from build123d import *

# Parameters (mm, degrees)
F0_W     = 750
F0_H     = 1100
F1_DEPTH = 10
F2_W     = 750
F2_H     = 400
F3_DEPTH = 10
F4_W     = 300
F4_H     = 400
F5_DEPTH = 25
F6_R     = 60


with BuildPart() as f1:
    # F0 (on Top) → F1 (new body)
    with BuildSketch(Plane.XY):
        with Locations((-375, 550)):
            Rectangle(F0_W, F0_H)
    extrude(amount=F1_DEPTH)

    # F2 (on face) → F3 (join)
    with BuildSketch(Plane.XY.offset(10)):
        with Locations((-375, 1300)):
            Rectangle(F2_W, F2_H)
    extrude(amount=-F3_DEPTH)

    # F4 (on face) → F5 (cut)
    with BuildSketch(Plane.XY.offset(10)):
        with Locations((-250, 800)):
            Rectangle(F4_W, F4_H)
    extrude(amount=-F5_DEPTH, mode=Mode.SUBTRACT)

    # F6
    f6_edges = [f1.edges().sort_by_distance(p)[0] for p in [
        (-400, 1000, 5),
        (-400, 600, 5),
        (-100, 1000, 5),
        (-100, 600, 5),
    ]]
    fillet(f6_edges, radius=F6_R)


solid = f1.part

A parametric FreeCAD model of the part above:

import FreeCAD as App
import Part
import Sketcher
from FreeCAD import Vector
Q = App.Units.Quantity


def edges_at(feature, points):
    """Names of the edges that pass closest to the given points."""
    edges = feature.Shape.Edges
    near = lambda p: min(range(len(edges)), key=lambda i: edges[i].distToShape(Part.Vertex(*p))[0])
    return sorted({f"Edge{near(p) + 1}" for p in points})


def add_polygon(sketch, points):
    """Adds a closed chain of lines whose ends are joined by coincident constraints."""
    first, n = sketch.GeometryCount, len(points)
    for a, b in zip(points, points[1:] + points[:1]):
        sketch.addGeometry(Part.LineSegment(App.Vector(*a, 0), App.Vector(*b, 0)), False)
    for i in range(n):
        sketch.addConstraint(Sketcher.Constraint("Coincident", first + i, 2, first + (i + 1) % n, 1))

doc = App.newDocument("Part")
params = doc.addObject("Spreadsheet::Sheet", "Params")
for row, (alias, value) in enumerate([
    ("sketch1_width", "750 mm"),
    ("sketch1_height", "1100 mm"),
    ("pad1_length", "10 mm"),
    ("sketch2_width", "750 mm"),
    ("sketch2_height", "400 mm"),
    ("pad2_length", "10 mm"),
    ("sketch3_width", "300 mm"),
    ("sketch3_height", "400 mm"),
    ("pocket1_length", "25 mm"),
    ("fillet_radius", "60 mm"),
], start=1):
    params.set(f"A{row}", alias)
    params.set(f"B{row}", "=" + value)
    params.setAlias(f"B{row}", alias)

body = doc.addObject("PartDesign::Body", "Body")

# Sketch on XY plane
sketch1 = doc.addObject("Sketcher::SketchObject", "Sketch")
body.addObject(sketch1)
sketch1.AttachmentSupport = (doc.XY_Plane, [""])
sketch1.MapMode = "FlatFace"
add_polygon(sketch1, [(-750, 1100), (-750, 0), (0, 0), (0, 1100)])  # lines 0-3
sketch1.addConstraint([
    Sketcher.Constraint("Vertical", 0),
    Sketcher.Constraint("Horizontal", 1),
    Sketcher.Constraint("Vertical", 2),
    Sketcher.Constraint("Horizontal", 3),
    Sketcher.Constraint("Coincident", 1, 2, -1, 1),
    Sketcher.Constraint("DistanceX", 1, 1, 1, 2, Q("750 mm")),
    Sketcher.Constraint("DistanceY", 0, 2, 0, 1, Q("1100 mm")),
])
sketch1.setExpression("Constraints[9]", "Params.sketch1_width")
sketch1.setExpression("Constraints[10]", "Params.sketch1_height")
pad1 = doc.addObject("PartDesign::Pad", "Pad")
body.addObject(pad1)
pad1.Profile = sketch1
pad1.setExpression("Length", "Params.pad1_length")

# Sketch on XY plane
sketch2 = doc.addObject("Sketcher::SketchObject", "Sketch001")
body.addObject(sketch2)
sketch2.AttachmentSupport = (doc.XY_Plane, [""])
sketch2.MapMode = "FlatFace"
sketch2.AttachmentOffset = App.Placement(Vector(0, 0, 10), App.Rotation())
add_polygon(sketch2, [(-750, 1500), (-750, 1100), (0, 1100), (0, 1500)])  # lines 0-3
sketch2.addConstraint([
    Sketcher.Constraint("Vertical", 0),
    Sketcher.Constraint("Horizontal", 1),
    Sketcher.Constraint("Vertical", 2),
    Sketcher.Constraint("Horizontal", 3),
    Sketcher.Constraint("PointOnObject", 1, 2, -2),
    Sketcher.Constraint("DistanceX", 1, 1, 1, 2, Q("750 mm")),
    Sketcher.Constraint("DistanceY", 0, 2, 0, 1, Q("400 mm")),
    Sketcher.Constraint("DistanceY", -1, 1, 0, 2, Q("1100 mm")),
])
sketch2.setExpression("Constraints[9]", "Params.sketch2_width")
sketch2.setExpression("Constraints[10]", "Params.sketch2_height")
pad2 = doc.addObject("PartDesign::Pad", "Pad001")
body.addObject(pad2)
pad2.Profile = sketch2
pad2.setExpression("Length", "Params.pad2_length")
pad2.Reversed = True

# Sketch on XY plane
sketch3 = doc.addObject("Sketcher::SketchObject", "Sketch002")
body.addObject(sketch3)
sketch3.AttachmentSupport = (doc.XY_Plane, [""])
sketch3.MapMode = "FlatFace"
sketch3.AttachmentOffset = App.Placement(Vector(0, 0, 10), App.Rotation())
add_polygon(sketch3, [(-400, 1000), (-400, 600), (-100, 600), (-100, 1000)])  # lines 0-3
sketch3.addConstraint([
    Sketcher.Constraint("Vertical", 0),
    Sketcher.Constraint("Horizontal", 1),
    Sketcher.Constraint("Vertical", 2),
    Sketcher.Constraint("Horizontal", 3),
    Sketcher.Constraint("DistanceX", 1, 1, 1, 2, Q("300 mm")),
    Sketcher.Constraint("DistanceY", 0, 2, 0, 1, Q("400 mm")),
    Sketcher.Constraint("DistanceX", 0, 2, -1, 1, Q("400 mm")),
    Sketcher.Constraint("DistanceY", -1, 1, 0, 2, Q("600 mm")),
])
sketch3.setExpression("Constraints[8]", "Params.sketch3_width")
sketch3.setExpression("Constraints[9]", "Params.sketch3_height")
pocket1 = doc.addObject("PartDesign::Pocket", "Pocket")
body.addObject(pocket1)
pocket1.Profile = sketch3
pocket1.setExpression("Length", "Params.pocket1_length")
doc.recompute()

fillet = doc.addObject("PartDesign::Fillet", "Fillet")
body.addObject(fillet)
fillet.Base = (pocket1, edges_at(pocket1, [
    (-400, 1000, 5),
    (-400, 600, 5),
    (-100, 1000, 5),
    (-100, 600, 5),
]))
fillet.setExpression("Radius", "Params.fillet_radius")

doc.recompute()
